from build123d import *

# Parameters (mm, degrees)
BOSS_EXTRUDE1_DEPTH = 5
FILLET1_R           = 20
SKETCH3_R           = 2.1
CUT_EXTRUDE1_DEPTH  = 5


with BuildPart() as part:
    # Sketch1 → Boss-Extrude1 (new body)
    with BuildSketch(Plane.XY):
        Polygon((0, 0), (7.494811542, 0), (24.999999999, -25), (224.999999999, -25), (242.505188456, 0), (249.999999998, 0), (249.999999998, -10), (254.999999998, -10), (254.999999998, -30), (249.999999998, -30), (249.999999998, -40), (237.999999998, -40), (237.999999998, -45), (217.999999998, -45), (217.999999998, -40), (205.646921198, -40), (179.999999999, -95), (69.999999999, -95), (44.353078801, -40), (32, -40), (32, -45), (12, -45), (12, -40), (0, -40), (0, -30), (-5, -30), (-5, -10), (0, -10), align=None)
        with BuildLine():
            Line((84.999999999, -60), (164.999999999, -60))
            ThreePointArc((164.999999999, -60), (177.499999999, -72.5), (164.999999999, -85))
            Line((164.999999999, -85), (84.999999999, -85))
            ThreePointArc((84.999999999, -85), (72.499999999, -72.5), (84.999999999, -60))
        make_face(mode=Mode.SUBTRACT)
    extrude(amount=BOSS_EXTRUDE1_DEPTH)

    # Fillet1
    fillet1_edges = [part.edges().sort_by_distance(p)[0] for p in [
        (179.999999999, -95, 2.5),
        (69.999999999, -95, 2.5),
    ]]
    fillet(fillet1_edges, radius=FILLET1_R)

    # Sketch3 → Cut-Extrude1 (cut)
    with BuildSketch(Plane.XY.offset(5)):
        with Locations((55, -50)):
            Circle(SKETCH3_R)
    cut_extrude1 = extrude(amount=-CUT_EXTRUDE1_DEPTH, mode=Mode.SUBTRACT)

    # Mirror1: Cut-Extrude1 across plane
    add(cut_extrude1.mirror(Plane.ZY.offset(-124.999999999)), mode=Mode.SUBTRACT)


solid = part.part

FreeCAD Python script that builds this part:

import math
import FreeCAD as App
import Part
import Sketcher

V = App.Vector
Q = App.Units.Quantity


def edges_at(feature, points):
    """Names of the edges that pass closest to the given points."""
    edges = feature.Shape.Edges
    near = lambda p: min(range(len(edges)), key=lambda i: edges[i].distToShape(Part.Vertex(*p))[0])
    return sorted({f"Edge{near(p) + 1}" for p in points})

doc = App.newDocument("Part")
body = doc.addObject("PartDesign::Body", "Body")

# Sketch on XY plane
sketch1 = doc.addObject("Sketcher::SketchObject", "Sketch")
body.addObject(sketch1)
sketch1.AttachmentSupport = (doc.XY_Plane, [""])
sketch1.MapMode = "FlatFace"
sketch1.addGeometry([
    Part.LineSegment(V(7, 0, 0), V(0, 0, 0)),  # 0
    Part.LineSegment(V(0, 0, 0), V(0, -10, 0)),  # 1
    Part.LineSegment(V(0, -10, 0), V(-5, -10, 0)),  # 2
    Part.LineSegment(V(-5, -10, 0), V(-5, -30, 0)),  # 3
    Part.LineSegment(V(-5, -30, 0), V(0, -30, 0)),  # 4
    Part.LineSegment(V(0, -30, 0), V(0, -40, 0)),  # 5
    Part.LineSegment(V(0, -40, 0), V(12, -40, 0)),  # 6
    Part.LineSegment(V(12, -40, 0), V(12, -45, 0)),  # 7
    Part.LineSegment(V(12, -45, 0), V(32, -45, 0)),  # 8
    Part.LineSegment(V(32, -45, 0), V(32, -40, 0)),  # 9
    Part.LineSegment(V(32, -40, 0), V(44, -40, 0)),  # 10
    Part.LineSegment(V(44, -40, 0), V(70, -95, 0)),  # 11
    Part.LineSegment(V(70, -95, 0), V(180, -95, 0)),  # 12
    Part.LineSegment(V(180, -95, 0), V(206, -40, 0)),  # 13
    Part.LineSegment(V(206, -40, 0), V(218, -40, 0)),  # 14
    Part.LineSegment(V(218, -40, 0), V(218, -45, 0)),  # 15
    Part.LineSegment(V(218, -45, 0), V(238, -45, 0)),  # 16
    Part.LineSegment(V(238, -45, 0), V(238, -40, 0)),  # 17
    Part.LineSegment(V(238, -40, 0), V(250, -40, 0)),  # 18
    Part.LineSegment(V(250, -40, 0), V(250, -30, 0)),  # 19
    Part.LineSegment(V(250, -30, 0), V(255, -30, 0)),  # 20
    Part.LineSegment(V(255, -30, 0), V(255, -10, 0)),  # 21
    Part.LineSegment(V(255, -10, 0), V(250, -10, 0)),  # 22
    Part.LineSegment(V(250, -10, 0), V(250, 0, 0)),  # 23
    Part.LineSegment(V(250, 0, 0), V(243, 0, 0)),  # 24
    Part.LineSegment(V(243, 0, 0), V(225, -25, 0)),  # 25
    Part.LineSegment(V(225, -25, 0), V(25, -25, 0)),  # 26
    Part.LineSegment(V(25, -25, 0), V(7, 0, 0)),  # 27
    Part.LineSegment(V(85, -60, 0), V(165, -60, 0)),  # 28
    Part.ArcOfCircle(Part.Circle(V(165, -72, 0), V(0, 0, 1), 12), math.radians(-90), math.radians(90)),  # 29
    Part.LineSegment(V(165, -85, 0), V(85, -85, 0)),  # 30
    Part.ArcOfCircle(Part.Circle(V(85, -72, 0), V(0, 0, 1), 12), math.radians(90), math.radians(270)),  # 31
], False)
sketch1.addConstraint([
    Sketcher.Constraint("Coincident", 0, 2, 1, 1),
    Sketcher.Constraint("Coincident", 1, 2, 2, 1),
    Sketcher.Constraint("Coincident", 2, 2, 3, 1),
    Sketcher.Constraint("Coincident", 3, 2, 4, 1),
    Sketcher.Constraint("Coincident", 4, 2, 5, 1),
    Sketcher.Constraint("Coincident", 5, 2, 6, 1),
    Sketcher.Constraint("Coincident", 6, 2, 7, 1),
    Sketcher.Constraint("Coincident", 7, 2, 8, 1),
    Sketcher.Constraint("Coincident", 8, 2, 9, 1),
    Sketcher.Constraint("Coincident", 9, 2, 10, 1),
    Sketcher.Constraint("Coincident", 10, 2, 11, 1),
    Sketcher.Constraint("Coincident", 11, 2, 12, 1),
    Sketcher.Constraint("Coincident", 12, 2, 13, 1),
    Sketcher.Constraint("Coincident", 13, 2, 14, 1),
    Sketcher.Constraint("Coincident", 14, 2, 15, 1),
    Sketcher.Constraint("Coincident", 15, 2, 16, 1),
    Sketcher.Constraint("Coincident", 16, 2, 17, 1),
    Sketcher.Constraint("Coincident", 17, 2, 18, 1),
    Sketcher.Constraint("Coincident", 18, 2, 19, 1),
    Sketcher.Constraint("Coincident", 19, 2, 20, 1),
    Sketcher.Constraint("Coincident", 20, 2, 21, 1),
    Sketcher.Constraint("Coincident", 21, 2, 22, 1),
    Sketcher.Constraint("Coincident", 22, 2, 23, 1),
    Sketcher.Constraint("Coincident", 23, 2, 24, 1),
    Sketcher.Constraint("Coincident", 24, 2, 25, 1),
    Sketcher.Constraint("Coincident", 25, 2, 26, 1),
    Sketcher.Constraint("Coincident", 26, 2, 27, 1),
    Sketcher.Constraint("Coincident", 27, 2, 0, 1),
    Sketcher.Constraint("Tangent", 28, 2, 29, 2),
    Sketcher.Constraint("Tangent", 29, 1, 30, 1),
    Sketcher.Constraint("Tangent", 30, 2, 31, 2),
    Sketcher.Constraint("Tangent", 31, 1, 28, 1),
    Sketcher.Constraint("Horizontal", 0),
    Sketcher.Constraint("Vertical", 1),
    Sketcher.Constraint("Horizontal", 2),
    Sketcher.Constraint("Vertical", 3),
    Sketcher.Constraint("Horizontal", 4),
    Sketcher.Constraint("Vertical", 5),
    Sketcher.Constraint("Horizontal", 6),
    Sketcher.Constraint("Vertical", 7),
    Sketcher.Constraint("Horizontal", 8),
    Sketcher.Constraint("Vertical", 9),
    Sketcher.Constraint("Horizontal", 10),
    Sketcher.Constraint("Horizontal", 12),
    Sketcher.Constraint("Horizontal", 14),
    Sketcher.Constraint("Vertical", 15),
    Sketcher.Constraint("Horizontal", 16),
    Sketcher.Constraint("Vertical", 17),
    Sketcher.Constraint("Horizontal", 18),
    Sketcher.Constraint("Vertical", 19),
    Sketcher.Constraint("Horizontal", 20),
    Sketcher.Constraint("Vertical", 21),
    Sketcher.Constraint("Horizontal", 22),
    Sketcher.Constraint("Vertical", 23),
    Sketcher.Constraint("Horizontal", 24),
    Sketcher.Constraint("Horizontal", 26),
    Sketcher.Constraint("Horizontal", 28),
    Sketcher.Constraint("Horizontal", 30),
    Sketcher.Constraint("Coincident", 0, 2, -1, 1),
    Sketcher.Constraint("PointOnObject", 4, 2, -2),
    Sketcher.Constraint("PointOnObject", 23, 2, -1),
    Sketcher.Constraint("Horizontal", 6, 2, 9, 2),
    Sketcher.Constraint("Horizontal", 10, 2, 13, 2),
    Sketcher.Constraint("Horizontal", 8, 2, 15, 2),
    Sketcher.Constraint("Horizontal", 14, 2, 17, 2),
    Sketcher.Constraint("Horizontal", 4, 2, 19, 2),
    Sketcher.Constraint("Horizontal", 2, 2, 21, 2),
    Sketcher.Constraint("Vertical", 19, 2, 22, 2),
    Sketcher.Constraint("Equal", 10, 14),
    Sketcher.Constraint("Equal", 8, 16),
    Sketcher.Constraint("Equal", 6, 18),
    Sketcher.Constraint("Equal", 4, 20),
    Sketcher.Constraint("Equal", 0, 24),
    Sketcher.Constraint("Equal", 16, 3),
    Sketcher.Constraint("Equal", 1, 5),
    Sketcher.Constraint("Equal", 22, 7),
    Sketcher.Constraint("Equal", 11, 13),
    Sketcher.Constraint("Equal", 25, 27),
    Sketcher.Constraint("Radius", 29, Q("12.5 mm")),
    Sketcher.Constraint("DistanceX", 2, 2, 2, 1, Q("5 mm")),
    Sketcher.Constraint("DistanceX", 6, 1, 6, 2, Q("12 mm")),
    Sketcher.Constraint("DistanceX", 8, 1, 8, 2, Q("20 mm")),
    Sketcher.Constraint("DistanceX", 12, 1, 12, 2, Q("110 mm")),
    Sketcher.Constraint("DistanceX", 26, 2, 26, 1, Q("200 mm")),
    Sketcher.Constraint("DistanceX", 28, 1, 28, 2, Q("80 mm")),
    Sketcher.Constraint("DistanceY", 1, 2, 1, 1, Q("10 mm")),
    Sketcher.Constraint("Angle", 11, Q("-65 deg")),
    Sketcher.Constraint("Angle", 25, Q("-125 deg")),
    Sketcher.Constraint("DistanceX", -1, 1, 29, 3, Q("165 mm")),
    Sketcher.Constraint("DistanceX", -1, 1, 11, 2, Q("70 mm")),
    Sketcher.Constraint("DistanceY", 11, 2, -1, 1, Q("95 mm")),
    Sketcher.Constraint("DistanceY", 25, 2, -1, 1, Q("25 mm")),
    Sketcher.Constraint("DistanceY", 28, 2, -1, 1, Q("60 mm")),
])
pad1 = doc.addObject("PartDesign::Pad", "Pad")
body.addObject(pad1)
pad1.Profile = sketch1
pad1.Length = 5
doc.recompute()

fillet = doc.addObject("PartDesign::Fillet", "Fillet")
body.addObject(fillet)
fillet.Base = (pad1, edges_at(pad1, [(180, -95, 2.5), (70, -95, 2.5)]))
fillet.Radius = 20

# Sketch on XY plane
sketch2 = doc.addObject("Sketcher::SketchObject", "Sketch001")
body.addObject(sketch2)
sketch2.AttachmentSupport = (doc.XY_Plane, [""])
sketch2.MapMode = "FlatFace"
sketch2.AttachmentOffset = App.Placement(V(0, 0, 5), App.Rotation())
sketch2.addGeometry(Part.Circle(V(55, -50, 0), V(0, 0, 1), 2.1), False)
sketch2.addConstraint([
    Sketcher.Constraint("Diameter", 0, Q("4.2 mm")),
    Sketcher.Constraint("DistanceX", -1, 1, 0, 3, Q("55 mm")),
    Sketcher.Constraint("DistanceY", 0, 3, -1, 1, Q("50 mm")),
])
pocket1 = doc.addObject("PartDesign::Pocket", "Pocket")
body.addObject(pocket1)
pocket1.Profile = sketch2
pocket1.Length = 5
doc.recompute()

datumplane = doc.addObject("PartDesign::Plane", "DatumPlane")
body.addObject(datumplane)
datumplane.AttachmentSupport = (doc.YZ_Plane, [""])
datumplane.MapMode = "FlatFace"
datumplane.AttachmentOffset = App.Placement(V(0, 0, 125), App.Rotation())
mirrored = doc.addObject("PartDesign::Mirrored", "Mirrored")
body.addObject(mirrored)
mirrored.Originals = [pocket1]
mirrored.MirrorPlane = (datumplane, [""])
body.Tip = mirrored

doc.recompute()
